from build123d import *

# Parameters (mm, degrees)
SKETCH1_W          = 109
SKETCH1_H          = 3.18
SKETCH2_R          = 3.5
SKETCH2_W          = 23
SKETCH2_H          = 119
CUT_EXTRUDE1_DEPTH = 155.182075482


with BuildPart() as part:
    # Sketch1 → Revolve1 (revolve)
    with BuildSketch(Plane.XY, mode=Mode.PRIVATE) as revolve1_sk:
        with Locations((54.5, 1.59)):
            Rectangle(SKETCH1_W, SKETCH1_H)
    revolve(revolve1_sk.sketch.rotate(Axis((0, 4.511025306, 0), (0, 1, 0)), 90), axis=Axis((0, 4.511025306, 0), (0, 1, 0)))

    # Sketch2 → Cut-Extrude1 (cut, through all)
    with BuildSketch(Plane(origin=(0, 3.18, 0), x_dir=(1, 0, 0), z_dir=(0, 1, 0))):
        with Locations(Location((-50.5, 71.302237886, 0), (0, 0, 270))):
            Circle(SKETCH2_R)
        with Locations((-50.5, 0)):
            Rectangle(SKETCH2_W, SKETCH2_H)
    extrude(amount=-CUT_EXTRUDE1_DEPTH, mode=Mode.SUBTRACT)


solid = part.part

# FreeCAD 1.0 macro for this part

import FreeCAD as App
import Part
import Sketcher

V = App.Vector

doc = App.newDocument("Part")
body = doc.addObject("PartDesign::Body", "Body")

# Sketch on XY plane
sketch1 = doc.addObject("Sketcher::SketchObject", "Sketch")
body.addObject(sketch1)
sketch1.AttachmentSupport = (doc.XY_Plane, [""])
sketch1.MapMode = "FlatFace"
sketch1.addGeometry(Part.LineSegment(V(0, 3.18, 0), V(0, 0, 0)), False)
sketch1.addGeometry(Part.LineSegment(V(0, 0, 0), V(109, 0, 0)), False)
sketch1.addGeometry(Part.LineSegment(V(109, 0, 0), V(109, 3.18, 0)), False)
sketch1.addGeometry(Part.LineSegment(V(109, 3.18, 0), V(0, 3.18, 0)), False)
sketch1.addConstraint(Sketcher.Constraint("Coincident", 0, 2, 1, 1))
sketch1.addConstraint(Sketcher.Constraint("Coincident", 1, 2, 2, 1))
sketch1.addConstraint(Sketcher.Constraint("Coincident", 2, 2, 3, 1))
sketch1.addConstraint(Sketcher.Constraint("Coincident", 3, 2, 0, 1))
sketch1.addConstraint(Sketcher.Constraint("Vertical", 0))
sketch1.addConstraint(Sketcher.Constraint("Horizontal", 1))
sketch1.addConstraint(Sketcher.Constraint("Vertical", 2))
sketch1.addConstraint(Sketcher.Constraint("Horizontal", 3))
sketch1.addConstraint(Sketcher.Constraint("Coincident", 0, 2, -1, 1))
sketch1.addConstraint(Sketcher.Constraint("DistanceX", 1, 1, 1, 2, 109.0))
sketch1.addConstraint(Sketcher.Constraint("DistanceY", 0, 2, 0, 1, 3.18))
revolution = doc.addObject("PartDesign::Revolution", "Revolution")
body.addObject(revolution)
revolution.Profile = sketch1
revolution.ReferenceAxis = (sketch1, ["V_Axis"])
revolution.Angle = 360

# Sketch on XZ plane
sketch2 = doc.addObject("Sketcher::SketchObject", "Sketch001")
body.addObject(sketch2)
sketch2.AttachmentSupport = (doc.XZ_Plane, [""])
sketch2.MapMode = "FlatFace"
sketch2.AttachmentOffset = App.Placement(V(0, 0, -3.18), App.Rotation())
sketch2.addGeometry(Part.Circle(V(-50.5, -71.302238, 0), V(0, 0, 1), 3.5), False)
sketch2.addGeometry(Part.LineSegment(V(-62, -59.5, 0), V(-62, 59.5, 0)), False)
sketch2.addGeometry(Part.LineSegment(V(-62, 59.5, 0), V(-39, 59.5, 0)), False)
sketch2.addGeometry(Part.LineSegment(V(-39, 59.5, 0), V(-39, -59.5, 0)), False)
sketch2.addGeometry(Part.LineSegment(V(-39, -59.5, 0), V(-62, -59.5, 0)), False)
sketch2.addConstraint(Sketcher.Constraint("Coincident", 1, 2, 2, 1))
sketch2.addConstraint(Sketcher.Constraint("Coincident", 2, 2, 3, 1))
sketch2.addConstraint(Sketcher.Constraint("Coincident", 3, 2, 4, 1))
sketch2.addConstraint(Sketcher.Constraint("Coincident", 4, 2, 1, 1))
sketch2.addConstraint(Sketcher.Constraint("Vertical", 1))
sketch2.addConstraint(Sketcher.Constraint("Horizontal", 2))
sketch2.addConstraint(Sketcher.Constraint("Vertical", 3))
sketch2.addConstraint(Sketcher.Constraint("Horizontal", 4))
sketch2.addConstraint(Sketcher.Constraint("Diameter", 0, 7.0))
sketch2.addConstraint(Sketcher.Constraint("DistanceX", 2, 1, 2, 2, 23.0))
sketch2.addConstraint(Sketcher.Constraint("DistanceY", 1, 1, 1, 2, 119.0))
sketch2.addConstraint(Sketcher.Constraint("DistanceX", 1, 2, -1, 1, 62.0))
sketch2.addConstraint(Sketcher.Constraint("DistanceX", 0, 3, -1, 1, 50.5))
sketch2.addConstraint(Sketcher.Constraint("DistanceY", -1, 1, 1, 2, 59.5))
sketch2.addConstraint(Sketcher.Constraint("DistanceY", 0, 3, -1, 1, 71.302238))
pocket1 = doc.addObject("PartDesign::Pocket", "Pocket")
body.addObject(pocket1)
pocket1.Profile = sketch2
pocket1.Type = "ThroughAll"
pocket1.Reversed = True

doc.recompute()
